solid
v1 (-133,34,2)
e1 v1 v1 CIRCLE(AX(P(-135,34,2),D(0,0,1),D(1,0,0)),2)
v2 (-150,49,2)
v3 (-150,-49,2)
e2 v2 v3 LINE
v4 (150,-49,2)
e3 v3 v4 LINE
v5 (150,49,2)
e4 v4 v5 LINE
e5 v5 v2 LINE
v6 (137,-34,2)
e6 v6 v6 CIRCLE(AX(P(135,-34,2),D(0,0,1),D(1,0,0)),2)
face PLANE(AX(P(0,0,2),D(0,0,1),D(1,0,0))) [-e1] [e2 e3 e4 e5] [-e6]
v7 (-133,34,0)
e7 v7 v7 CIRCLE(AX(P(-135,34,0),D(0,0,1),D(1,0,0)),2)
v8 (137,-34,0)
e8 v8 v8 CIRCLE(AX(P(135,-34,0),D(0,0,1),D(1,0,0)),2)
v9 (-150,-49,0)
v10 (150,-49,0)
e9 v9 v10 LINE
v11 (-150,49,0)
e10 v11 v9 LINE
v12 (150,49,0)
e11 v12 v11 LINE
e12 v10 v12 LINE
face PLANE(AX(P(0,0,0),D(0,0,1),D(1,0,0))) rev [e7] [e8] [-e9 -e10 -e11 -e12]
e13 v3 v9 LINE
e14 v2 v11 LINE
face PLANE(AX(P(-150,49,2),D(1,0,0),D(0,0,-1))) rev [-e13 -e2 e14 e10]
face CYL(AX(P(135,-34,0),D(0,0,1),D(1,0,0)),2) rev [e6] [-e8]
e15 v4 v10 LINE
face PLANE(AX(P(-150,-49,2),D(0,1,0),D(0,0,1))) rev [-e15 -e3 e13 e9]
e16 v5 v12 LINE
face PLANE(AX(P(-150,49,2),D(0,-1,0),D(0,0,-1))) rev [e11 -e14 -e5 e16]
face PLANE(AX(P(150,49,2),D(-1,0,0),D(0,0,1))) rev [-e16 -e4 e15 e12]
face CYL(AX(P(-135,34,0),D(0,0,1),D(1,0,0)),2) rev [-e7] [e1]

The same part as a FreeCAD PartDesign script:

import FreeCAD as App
import Part
import Sketcher

V = App.Vector
Q = App.Units.Quantity


def add_polygon(sketch, points):
    """Adds a closed chain of lines whose ends are joined by coincident constraints."""
    first, n = sketch.GeometryCount, len(points)
    for a, b in zip(points, points[1:] + points[:1]):
        sketch.addGeometry(Part.LineSegment(App.Vector(*a, 0), App.Vector(*b, 0)), False)
    for i in range(n):
        sketch.addConstraint(Sketcher.Constraint("Coincident", first + i, 2, first + (i + 1) % n, 1))

doc = App.newDocument("Part")
body = doc.addObject("PartDesign::Body", "Body")

# Sketch on XY plane
sketch1 = body.newObject("Sketcher::SketchObject", "Sketch")
sketch1.AttachmentSupport = (doc.getObject("XY_Plane"), [""])
sketch1.MapMode = "FlatFace"
add_polygon(sketch1, [(-150, 49), (-150, -49), (150, -49), (150, 49)])  # lines 0-3
sketch1.addConstraint(Sketcher.Constraint("Vertical", 0))
sketch1.addConstraint(Sketcher.Constraint("Horizontal", 1))
sketch1.addConstraint(Sketcher.Constraint("Vertical", 2))
sketch1.addConstraint(Sketcher.Constraint("Horizontal", 3))
sketch1.addConstraint(Sketcher.Constraint("Symmetric", 0, 2, 2, 2, -1, 1))
sketch1.addConstraint(Sketcher.Constraint("DistanceX", 1, 1, 1, 2, Q("300 mm")))
sketch1.addConstraint(Sketcher.Constraint("DistanceY", 0, 2, 0, 1, Q("98 mm")))
pad1 = body.newObject("PartDesign::Pad", "Pad")
pad1.Profile = sketch1
pad1.Length = 2

# Sketch on XY plane
sketch2 = body.newObject("Sketcher::SketchObject", "Sketch001")
sketch2.AttachmentSupport = (doc.getObject("XY_Plane"), [""])
sketch2.MapMode = "FlatFace"
sketch2.AttachmentOffset = App.Placement(V(0, 0, 2), App.Rotation())
sketch2.addGeometry(Part.Circle(V(-135, 34, 0), V(0, 0, 1), 2), False)
sketch2.addGeometry(Part.Circle(V(135, -34, 0), V(0, 0, 1), 2), False)
sketch2.addConstraint(Sketcher.Constraint("Equal", 0, 1))
sketch2.addConstraint(Sketcher.Constraint("Symmetric", 0, 3, 1, 3, -1, 1))
sketch2.addConstraint(Sketcher.Constraint("Diameter", 0, Q("4 mm")))
sketch2.addConstraint(Sketcher.Constraint("DistanceX", 0, 3, -1, 1, Q("135 mm")))
sketch2.addConstraint(Sketcher.Constraint("DistanceY", -1, 1, 0, 3, Q("34 mm")))
pocket1 = body.newObject("PartDesign::Pocket", "Pocket")
pocket1.Profile = sketch2
pocket1.Type = "ThroughAll"

doc.recompute()
